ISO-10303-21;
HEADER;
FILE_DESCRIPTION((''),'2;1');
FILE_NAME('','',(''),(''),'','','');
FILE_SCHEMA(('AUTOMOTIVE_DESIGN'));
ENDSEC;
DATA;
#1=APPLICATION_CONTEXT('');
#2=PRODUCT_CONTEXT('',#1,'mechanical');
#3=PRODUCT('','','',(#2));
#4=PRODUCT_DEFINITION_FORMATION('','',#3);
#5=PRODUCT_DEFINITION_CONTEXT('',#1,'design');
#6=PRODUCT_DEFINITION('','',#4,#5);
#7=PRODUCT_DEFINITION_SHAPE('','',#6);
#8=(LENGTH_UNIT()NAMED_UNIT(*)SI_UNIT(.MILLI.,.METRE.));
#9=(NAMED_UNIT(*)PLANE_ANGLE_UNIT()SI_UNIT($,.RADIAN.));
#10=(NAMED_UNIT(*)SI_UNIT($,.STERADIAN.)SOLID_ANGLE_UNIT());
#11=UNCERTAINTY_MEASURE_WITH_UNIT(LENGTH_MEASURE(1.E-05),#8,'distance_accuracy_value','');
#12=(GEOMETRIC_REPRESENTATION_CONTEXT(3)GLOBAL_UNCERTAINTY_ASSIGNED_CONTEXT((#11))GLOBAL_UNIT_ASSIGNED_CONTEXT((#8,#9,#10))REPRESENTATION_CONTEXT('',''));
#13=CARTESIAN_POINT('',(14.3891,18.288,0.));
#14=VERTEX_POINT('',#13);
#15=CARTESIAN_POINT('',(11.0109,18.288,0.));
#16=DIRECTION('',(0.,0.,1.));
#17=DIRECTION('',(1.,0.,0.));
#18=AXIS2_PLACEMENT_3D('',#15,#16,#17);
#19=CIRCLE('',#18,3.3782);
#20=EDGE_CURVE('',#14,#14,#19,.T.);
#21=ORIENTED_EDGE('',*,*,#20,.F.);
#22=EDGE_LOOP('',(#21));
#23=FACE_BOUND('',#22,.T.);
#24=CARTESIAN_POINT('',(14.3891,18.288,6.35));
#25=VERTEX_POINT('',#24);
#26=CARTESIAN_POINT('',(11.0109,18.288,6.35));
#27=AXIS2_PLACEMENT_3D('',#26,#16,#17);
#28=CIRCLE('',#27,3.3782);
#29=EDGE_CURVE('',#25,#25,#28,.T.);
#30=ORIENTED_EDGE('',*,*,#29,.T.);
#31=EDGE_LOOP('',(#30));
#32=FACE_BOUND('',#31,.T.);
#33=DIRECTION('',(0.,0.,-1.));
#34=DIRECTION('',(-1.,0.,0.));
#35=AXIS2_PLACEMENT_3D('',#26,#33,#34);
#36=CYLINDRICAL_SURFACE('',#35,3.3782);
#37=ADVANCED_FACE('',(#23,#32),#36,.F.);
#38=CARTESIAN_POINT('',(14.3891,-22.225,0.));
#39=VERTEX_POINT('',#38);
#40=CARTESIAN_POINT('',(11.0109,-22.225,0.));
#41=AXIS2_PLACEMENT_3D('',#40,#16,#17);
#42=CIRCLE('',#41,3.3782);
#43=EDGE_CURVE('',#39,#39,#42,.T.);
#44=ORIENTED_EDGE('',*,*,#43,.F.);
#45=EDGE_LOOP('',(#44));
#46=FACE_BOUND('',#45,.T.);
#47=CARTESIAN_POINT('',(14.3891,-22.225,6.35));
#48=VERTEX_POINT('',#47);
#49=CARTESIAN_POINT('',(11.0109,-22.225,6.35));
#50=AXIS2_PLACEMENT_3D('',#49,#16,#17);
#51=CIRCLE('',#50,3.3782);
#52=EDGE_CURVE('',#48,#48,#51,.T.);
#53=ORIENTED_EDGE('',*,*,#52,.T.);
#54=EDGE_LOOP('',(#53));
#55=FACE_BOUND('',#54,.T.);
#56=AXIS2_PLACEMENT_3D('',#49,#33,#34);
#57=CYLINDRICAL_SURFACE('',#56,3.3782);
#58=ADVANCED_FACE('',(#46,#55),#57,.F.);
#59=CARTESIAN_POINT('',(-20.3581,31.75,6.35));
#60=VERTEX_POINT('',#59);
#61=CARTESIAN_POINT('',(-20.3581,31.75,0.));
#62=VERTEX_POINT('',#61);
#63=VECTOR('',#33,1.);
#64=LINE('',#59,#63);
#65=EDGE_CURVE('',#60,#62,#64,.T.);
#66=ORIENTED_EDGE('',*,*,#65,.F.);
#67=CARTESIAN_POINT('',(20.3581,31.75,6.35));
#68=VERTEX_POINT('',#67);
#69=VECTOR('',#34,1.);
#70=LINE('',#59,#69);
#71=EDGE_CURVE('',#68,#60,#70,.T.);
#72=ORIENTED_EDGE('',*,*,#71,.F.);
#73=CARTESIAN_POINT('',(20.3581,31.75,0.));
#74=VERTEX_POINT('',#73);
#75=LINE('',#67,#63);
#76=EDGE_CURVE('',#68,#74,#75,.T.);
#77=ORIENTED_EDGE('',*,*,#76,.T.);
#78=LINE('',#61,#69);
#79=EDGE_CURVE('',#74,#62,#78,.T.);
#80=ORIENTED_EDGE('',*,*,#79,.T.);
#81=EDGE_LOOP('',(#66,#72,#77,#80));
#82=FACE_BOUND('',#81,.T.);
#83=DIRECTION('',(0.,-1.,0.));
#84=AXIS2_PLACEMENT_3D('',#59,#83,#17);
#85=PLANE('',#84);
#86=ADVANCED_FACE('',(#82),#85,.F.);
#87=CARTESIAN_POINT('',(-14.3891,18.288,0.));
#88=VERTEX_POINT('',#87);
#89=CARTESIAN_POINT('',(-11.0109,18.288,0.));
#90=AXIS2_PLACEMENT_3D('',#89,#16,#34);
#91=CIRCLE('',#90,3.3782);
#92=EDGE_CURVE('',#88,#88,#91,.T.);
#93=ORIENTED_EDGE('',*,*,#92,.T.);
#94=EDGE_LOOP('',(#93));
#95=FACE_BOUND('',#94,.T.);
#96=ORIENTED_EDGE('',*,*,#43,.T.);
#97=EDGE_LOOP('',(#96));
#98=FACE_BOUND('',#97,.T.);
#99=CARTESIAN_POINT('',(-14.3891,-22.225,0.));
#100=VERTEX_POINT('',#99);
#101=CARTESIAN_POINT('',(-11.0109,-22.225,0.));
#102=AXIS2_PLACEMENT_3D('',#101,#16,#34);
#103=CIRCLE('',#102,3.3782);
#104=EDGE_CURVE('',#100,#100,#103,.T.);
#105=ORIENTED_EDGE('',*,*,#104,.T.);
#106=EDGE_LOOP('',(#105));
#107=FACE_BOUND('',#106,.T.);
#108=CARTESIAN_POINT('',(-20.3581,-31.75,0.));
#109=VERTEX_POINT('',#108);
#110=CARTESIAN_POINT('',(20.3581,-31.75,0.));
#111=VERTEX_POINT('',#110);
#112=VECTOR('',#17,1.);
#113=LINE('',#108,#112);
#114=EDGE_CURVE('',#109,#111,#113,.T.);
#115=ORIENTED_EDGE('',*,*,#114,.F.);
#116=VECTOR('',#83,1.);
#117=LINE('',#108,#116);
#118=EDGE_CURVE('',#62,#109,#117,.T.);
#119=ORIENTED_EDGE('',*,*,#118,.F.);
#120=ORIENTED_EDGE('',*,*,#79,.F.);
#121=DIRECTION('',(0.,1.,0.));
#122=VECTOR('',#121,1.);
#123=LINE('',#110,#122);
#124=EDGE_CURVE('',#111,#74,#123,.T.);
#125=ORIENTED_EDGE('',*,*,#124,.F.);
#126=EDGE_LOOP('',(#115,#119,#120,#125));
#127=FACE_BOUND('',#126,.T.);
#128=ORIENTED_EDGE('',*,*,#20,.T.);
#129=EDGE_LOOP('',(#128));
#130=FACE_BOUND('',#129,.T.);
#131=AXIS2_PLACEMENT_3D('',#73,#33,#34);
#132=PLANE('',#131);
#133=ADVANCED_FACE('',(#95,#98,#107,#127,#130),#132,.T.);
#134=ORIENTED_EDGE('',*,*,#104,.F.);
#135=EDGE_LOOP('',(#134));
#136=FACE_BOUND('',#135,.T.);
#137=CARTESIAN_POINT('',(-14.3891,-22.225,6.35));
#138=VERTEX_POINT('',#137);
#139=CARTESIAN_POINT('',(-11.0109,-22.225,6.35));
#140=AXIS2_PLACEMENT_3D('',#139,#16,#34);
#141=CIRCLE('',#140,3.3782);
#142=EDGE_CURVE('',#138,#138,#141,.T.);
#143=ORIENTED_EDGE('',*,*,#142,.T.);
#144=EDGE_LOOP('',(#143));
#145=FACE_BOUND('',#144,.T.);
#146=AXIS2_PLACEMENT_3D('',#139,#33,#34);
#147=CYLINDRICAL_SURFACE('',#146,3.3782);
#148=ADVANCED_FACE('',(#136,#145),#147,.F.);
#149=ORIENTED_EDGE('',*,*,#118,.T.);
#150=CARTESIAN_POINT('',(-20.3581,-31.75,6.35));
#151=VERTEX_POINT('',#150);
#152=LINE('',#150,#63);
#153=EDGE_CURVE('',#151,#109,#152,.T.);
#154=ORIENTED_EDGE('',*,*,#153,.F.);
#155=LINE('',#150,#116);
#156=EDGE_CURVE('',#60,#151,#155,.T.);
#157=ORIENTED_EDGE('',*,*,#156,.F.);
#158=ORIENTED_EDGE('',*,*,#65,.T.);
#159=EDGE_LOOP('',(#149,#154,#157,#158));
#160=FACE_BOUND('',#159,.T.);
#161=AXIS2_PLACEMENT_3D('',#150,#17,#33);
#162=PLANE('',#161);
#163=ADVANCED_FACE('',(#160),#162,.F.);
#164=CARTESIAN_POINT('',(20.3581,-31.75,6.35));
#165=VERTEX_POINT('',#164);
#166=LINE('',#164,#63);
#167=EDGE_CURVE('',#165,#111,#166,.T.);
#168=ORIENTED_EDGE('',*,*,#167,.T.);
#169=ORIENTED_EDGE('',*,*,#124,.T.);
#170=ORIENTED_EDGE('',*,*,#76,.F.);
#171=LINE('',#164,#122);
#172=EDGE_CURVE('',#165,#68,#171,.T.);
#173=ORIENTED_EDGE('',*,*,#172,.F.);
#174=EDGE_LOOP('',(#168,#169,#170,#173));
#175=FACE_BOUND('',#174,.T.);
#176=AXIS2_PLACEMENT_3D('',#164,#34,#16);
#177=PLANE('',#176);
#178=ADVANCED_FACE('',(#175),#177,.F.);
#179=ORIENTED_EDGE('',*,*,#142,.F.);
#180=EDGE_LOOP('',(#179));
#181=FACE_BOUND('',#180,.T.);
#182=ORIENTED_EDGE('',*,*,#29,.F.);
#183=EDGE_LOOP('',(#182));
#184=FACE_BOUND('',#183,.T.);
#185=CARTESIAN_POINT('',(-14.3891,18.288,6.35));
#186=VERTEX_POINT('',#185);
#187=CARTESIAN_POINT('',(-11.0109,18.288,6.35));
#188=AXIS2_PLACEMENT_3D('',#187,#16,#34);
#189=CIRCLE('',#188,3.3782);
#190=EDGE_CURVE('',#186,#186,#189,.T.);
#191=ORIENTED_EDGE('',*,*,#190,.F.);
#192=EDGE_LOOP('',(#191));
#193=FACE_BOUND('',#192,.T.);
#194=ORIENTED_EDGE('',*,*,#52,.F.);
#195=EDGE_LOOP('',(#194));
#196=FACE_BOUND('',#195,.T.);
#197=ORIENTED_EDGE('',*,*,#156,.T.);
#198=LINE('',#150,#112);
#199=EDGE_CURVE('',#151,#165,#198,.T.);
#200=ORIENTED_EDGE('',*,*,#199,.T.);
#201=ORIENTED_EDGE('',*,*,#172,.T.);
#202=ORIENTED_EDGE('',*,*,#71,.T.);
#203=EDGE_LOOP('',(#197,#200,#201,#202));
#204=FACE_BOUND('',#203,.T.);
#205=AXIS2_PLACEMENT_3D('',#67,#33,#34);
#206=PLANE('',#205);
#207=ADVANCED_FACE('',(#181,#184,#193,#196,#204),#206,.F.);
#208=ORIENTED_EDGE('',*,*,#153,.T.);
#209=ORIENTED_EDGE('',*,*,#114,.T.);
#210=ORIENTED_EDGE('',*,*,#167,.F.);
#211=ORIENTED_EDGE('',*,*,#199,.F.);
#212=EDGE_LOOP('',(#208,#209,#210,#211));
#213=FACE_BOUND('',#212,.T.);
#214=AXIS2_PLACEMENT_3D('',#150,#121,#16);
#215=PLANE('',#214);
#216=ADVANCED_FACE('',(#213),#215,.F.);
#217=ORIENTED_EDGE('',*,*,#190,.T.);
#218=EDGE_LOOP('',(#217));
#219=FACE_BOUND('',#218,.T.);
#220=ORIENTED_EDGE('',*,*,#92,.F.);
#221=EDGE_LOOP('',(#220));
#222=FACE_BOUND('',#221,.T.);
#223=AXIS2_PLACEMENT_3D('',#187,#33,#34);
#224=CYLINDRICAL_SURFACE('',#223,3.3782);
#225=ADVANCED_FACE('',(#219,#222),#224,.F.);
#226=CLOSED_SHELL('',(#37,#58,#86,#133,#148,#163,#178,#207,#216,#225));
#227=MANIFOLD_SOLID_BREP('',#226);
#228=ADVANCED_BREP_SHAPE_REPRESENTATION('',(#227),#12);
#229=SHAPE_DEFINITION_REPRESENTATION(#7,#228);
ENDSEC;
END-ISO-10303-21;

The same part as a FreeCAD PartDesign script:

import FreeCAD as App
import Part
import Sketcher

V = App.Vector
Q = App.Units.Quantity

doc = App.newDocument("Part")
body = doc.addObject("PartDesign::Body", "Body")

# Sketch on XY plane
sketch1 = body.newObject("Sketcher::SketchObject", "Sketch")
sketch1.AttachmentSupport = (doc.getObject("XY_Plane"), [""])
sketch1.MapMode = "FlatFace"
sketch1.addGeometry([
    Part.LineSegment(V(-20.4, 31.8, 0), V(-20.4, -31.8, 0)),  # 0
    Part.LineSegment(V(-20.4, -31.8, 0), V(20.4, -31.8, 0)),  # 1
    Part.LineSegment(V(20.4, -31.8, 0), V(20.4, 31.8, 0)),  # 2
    Part.LineSegment(V(20.4, 31.8, 0), V(-20.4, 31.8, 0)),  # 3
    Part.Circle(V(-11, -22.2, 0), V(0, 0, 1), 3.4),  # 4
    Part.Circle(V(11, -22.2, 0), V(0, 0, 1), 3.4),  # 5
    Part.Circle(V(-11, 18.3, 0), V(0, 0, 1), 3.4),  # 6
    Part.Circle(V(11, 18.3, 0), V(0, 0, 1), 3.4),  # 7
], False)
sketch1.addConstraint([
    Sketcher.Constraint("Coincident", 0, 2, 1, 1),
    Sketcher.Constraint("Coincident", 1, 2, 2, 1),
    Sketcher.Constraint("Coincident", 2, 2, 3, 1),
    Sketcher.Constraint("Coincident", 3, 2, 0, 1),
    Sketcher.Constraint("Vertical", 0),
    Sketcher.Constraint("Horizontal", 1),
    Sketcher.Constraint("Vertical", 2),
    Sketcher.Constraint("Horizontal", 3),
    Sketcher.Constraint("Equal", 4, 5),
    Sketcher.Constraint("Equal", 5, 6),
    Sketcher.Constraint("Equal", 6, 7),
    Sketcher.Constraint("Symmetric", 0, 2, 2, 2, -1, 1),
    Sketcher.Constraint("Symmetric", 4, 3, 5, 3, -2),
    Sketcher.Constraint("Symmetric", 6, 3, 7, 3, -2),
    Sketcher.Constraint("Vertical", 4, 3, 6, 3),
    Sketcher.Constraint("Diameter", 4, Q("0.266 in")),
    Sketcher.Constraint("DistanceY", 0, 2, 0, 1, Q("2.5 in")),
    Sketcher.Constraint("DistanceX", 1, 1, 1, 2, Q("1.603 in")),
    Sketcher.Constraint("DistanceY", -1, 1, 6, 3, Q("0.72 in")),
    Sketcher.Constraint("DistanceY", 4, 3, -1, 1, Q("0.875 in")),
    Sketcher.Constraint("DistanceX", 4, 3, 5, 3, Q("0.867 in")),
])
pad1 = body.newObject("PartDesign::Pad", "Pad")
pad1.Profile = sketch1
pad1.Length = Q("0.25 in")

doc.recompute()
